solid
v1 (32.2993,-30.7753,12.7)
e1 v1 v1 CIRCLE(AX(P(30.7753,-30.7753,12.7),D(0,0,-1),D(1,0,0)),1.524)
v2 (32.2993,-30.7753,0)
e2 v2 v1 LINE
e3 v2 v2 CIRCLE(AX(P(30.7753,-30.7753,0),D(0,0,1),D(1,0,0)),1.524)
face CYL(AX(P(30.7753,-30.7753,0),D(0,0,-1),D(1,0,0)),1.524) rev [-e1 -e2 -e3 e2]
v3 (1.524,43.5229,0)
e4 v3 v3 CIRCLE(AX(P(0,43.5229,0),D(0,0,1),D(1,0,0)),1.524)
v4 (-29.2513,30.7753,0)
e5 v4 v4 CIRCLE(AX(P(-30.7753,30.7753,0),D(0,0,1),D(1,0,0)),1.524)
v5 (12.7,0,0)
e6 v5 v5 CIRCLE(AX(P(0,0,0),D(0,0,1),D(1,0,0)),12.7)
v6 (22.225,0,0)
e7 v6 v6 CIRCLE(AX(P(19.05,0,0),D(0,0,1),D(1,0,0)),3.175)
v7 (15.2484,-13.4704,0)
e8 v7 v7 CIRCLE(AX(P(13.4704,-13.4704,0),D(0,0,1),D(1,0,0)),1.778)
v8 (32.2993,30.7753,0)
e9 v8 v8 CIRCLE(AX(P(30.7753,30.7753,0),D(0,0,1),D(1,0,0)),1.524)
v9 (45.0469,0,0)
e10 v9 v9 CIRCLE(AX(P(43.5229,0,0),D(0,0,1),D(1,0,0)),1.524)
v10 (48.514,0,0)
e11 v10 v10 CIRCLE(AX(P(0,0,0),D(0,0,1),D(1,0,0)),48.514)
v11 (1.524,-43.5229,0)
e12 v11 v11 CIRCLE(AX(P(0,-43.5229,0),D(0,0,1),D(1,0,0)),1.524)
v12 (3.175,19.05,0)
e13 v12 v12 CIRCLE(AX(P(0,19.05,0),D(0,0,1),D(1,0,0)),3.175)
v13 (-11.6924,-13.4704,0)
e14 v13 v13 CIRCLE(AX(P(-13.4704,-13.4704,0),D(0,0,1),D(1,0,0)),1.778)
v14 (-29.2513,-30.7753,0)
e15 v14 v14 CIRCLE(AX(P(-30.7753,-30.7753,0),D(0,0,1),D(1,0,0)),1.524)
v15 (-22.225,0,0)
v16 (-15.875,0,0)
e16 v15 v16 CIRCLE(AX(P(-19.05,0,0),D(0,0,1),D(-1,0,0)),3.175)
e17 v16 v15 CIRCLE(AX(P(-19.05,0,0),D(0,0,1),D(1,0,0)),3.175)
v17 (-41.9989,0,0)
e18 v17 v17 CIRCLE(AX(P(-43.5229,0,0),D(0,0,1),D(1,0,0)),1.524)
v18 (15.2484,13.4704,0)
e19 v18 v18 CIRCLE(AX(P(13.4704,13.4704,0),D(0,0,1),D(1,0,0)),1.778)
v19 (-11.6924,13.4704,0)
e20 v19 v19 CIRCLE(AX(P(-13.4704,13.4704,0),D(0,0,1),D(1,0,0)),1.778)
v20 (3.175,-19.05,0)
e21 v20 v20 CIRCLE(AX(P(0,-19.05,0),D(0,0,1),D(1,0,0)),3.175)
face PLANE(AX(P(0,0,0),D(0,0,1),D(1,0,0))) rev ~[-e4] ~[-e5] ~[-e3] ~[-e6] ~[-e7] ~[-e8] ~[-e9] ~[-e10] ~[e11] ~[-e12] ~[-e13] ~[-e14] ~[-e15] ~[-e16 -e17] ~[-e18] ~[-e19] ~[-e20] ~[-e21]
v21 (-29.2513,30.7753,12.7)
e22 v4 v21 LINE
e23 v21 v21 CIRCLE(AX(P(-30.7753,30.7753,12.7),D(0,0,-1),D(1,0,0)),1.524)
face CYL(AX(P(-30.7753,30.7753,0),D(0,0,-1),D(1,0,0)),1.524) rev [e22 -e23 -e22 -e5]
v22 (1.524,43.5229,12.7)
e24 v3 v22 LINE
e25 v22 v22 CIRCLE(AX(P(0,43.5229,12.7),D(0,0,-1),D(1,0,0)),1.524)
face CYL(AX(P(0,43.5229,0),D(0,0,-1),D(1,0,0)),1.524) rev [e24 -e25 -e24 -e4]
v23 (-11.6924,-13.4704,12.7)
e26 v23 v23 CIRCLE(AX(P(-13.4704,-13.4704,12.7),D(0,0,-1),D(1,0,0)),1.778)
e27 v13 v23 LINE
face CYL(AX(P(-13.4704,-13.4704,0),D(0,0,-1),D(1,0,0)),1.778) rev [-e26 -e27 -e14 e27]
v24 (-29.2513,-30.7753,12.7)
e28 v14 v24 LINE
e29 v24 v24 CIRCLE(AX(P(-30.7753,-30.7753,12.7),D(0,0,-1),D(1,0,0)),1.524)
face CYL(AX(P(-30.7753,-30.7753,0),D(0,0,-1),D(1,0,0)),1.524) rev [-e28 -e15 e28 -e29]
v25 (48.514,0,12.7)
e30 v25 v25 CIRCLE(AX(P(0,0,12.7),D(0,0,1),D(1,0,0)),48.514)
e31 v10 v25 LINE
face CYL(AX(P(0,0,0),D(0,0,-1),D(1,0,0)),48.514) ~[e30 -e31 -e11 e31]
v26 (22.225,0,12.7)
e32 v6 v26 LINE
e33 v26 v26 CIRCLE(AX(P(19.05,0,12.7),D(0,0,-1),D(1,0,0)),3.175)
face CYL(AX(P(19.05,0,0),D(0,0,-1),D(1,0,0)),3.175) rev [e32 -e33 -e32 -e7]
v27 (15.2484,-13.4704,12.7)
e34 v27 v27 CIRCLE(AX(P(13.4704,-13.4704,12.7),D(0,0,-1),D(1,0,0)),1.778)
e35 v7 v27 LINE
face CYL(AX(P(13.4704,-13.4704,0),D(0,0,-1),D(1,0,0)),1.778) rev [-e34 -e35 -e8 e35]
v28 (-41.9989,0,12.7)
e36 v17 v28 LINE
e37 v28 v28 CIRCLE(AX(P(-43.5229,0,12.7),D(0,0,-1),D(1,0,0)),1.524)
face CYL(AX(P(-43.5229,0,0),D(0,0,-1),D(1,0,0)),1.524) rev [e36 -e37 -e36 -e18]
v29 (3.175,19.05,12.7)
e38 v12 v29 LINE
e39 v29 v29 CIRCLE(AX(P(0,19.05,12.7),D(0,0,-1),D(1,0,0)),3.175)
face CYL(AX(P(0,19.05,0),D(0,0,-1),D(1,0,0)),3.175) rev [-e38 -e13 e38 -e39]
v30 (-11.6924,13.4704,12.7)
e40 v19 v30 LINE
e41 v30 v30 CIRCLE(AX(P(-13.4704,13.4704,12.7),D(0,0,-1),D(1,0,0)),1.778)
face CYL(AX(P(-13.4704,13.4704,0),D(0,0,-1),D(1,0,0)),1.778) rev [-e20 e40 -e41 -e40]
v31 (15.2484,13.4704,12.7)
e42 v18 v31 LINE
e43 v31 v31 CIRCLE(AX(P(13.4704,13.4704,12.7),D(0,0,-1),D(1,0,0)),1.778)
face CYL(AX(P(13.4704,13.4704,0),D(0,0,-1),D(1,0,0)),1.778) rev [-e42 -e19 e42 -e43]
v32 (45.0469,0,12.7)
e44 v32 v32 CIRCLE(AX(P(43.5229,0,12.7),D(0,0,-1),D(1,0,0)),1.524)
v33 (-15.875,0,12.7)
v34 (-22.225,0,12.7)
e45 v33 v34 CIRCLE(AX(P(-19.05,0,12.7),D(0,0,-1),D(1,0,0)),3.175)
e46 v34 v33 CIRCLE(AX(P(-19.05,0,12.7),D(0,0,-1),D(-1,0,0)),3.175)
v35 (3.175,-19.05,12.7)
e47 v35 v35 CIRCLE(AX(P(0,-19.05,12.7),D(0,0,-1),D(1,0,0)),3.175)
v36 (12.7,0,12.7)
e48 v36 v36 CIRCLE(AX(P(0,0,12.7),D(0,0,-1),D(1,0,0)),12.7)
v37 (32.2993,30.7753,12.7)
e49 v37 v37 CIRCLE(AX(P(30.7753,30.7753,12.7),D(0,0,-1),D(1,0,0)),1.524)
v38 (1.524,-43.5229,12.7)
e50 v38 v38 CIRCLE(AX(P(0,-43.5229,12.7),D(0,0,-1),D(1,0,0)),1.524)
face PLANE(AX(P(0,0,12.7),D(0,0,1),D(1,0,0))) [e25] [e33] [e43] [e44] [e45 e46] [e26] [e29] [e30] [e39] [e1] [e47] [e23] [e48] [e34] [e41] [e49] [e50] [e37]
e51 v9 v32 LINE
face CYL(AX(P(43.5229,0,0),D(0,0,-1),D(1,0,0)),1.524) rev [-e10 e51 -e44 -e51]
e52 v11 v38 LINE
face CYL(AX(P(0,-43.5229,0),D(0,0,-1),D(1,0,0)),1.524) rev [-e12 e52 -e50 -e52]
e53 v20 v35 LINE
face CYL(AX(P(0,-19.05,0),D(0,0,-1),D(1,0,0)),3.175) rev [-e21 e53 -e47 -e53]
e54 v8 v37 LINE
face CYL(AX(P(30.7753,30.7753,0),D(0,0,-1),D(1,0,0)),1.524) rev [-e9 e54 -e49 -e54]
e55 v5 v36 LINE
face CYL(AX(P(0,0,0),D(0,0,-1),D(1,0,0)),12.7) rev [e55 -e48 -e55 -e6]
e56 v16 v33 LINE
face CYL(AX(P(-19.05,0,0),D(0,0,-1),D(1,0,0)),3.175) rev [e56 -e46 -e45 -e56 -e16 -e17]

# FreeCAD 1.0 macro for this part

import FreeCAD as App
import Part
import Sketcher

V = App.Vector
Q = App.Units.Quantity

doc = App.newDocument("Part")
body = doc.addObject("PartDesign::Body", "Body")

sketch1 = doc.addObject("Sketcher::SketchObject", "Sketch")
body.addObject(sketch1)
sketch1.AttachmentSupport = (doc.XY_Plane, [""])
sketch1.MapMode = "FlatFace"
sketch1.addGeometry(Part.Circle(V(0, 0, 0), V(0, 0, 1), 48.5), False)
sketch1.addGeometry(Part.Circle(V(-43.5, 0, 0), V(0, 0, 1), 1.5), False)
sketch1.addGeometry(Part.Circle(V(-30.8, -30.8, 0), V(0, 0, 1), 1.5), False)
sketch1.addGeometry(Part.Circle(V(0, -43.5, 0), V(0, 0, 1), 1.5), False)
sketch1.addGeometry(Part.Circle(V(30.8, -30.8, 0), V(0, 0, 1), 1.5), False)
sketch1.addGeometry(Part.Circle(V(43.5, 0, 0), V(0, 0, 1), 1.5), False)
sketch1.addGeometry(Part.Circle(V(30.8, 30.8, 0), V(0, 0, 1), 1.5), False)
sketch1.addGeometry(Part.Circle(V(0, 43.5, 0), V(0, 0, 1), 1.5), False)
sketch1.addGeometry(Part.Circle(V(-30.8, 30.8, 0), V(0, 0, 1), 1.5), False)
sketch1.addGeometry(Part.Circle(V(0, -19.1, 0), V(0, 0, 1), 3.2), False)
sketch1.addGeometry(Part.Circle(V(13.5, -13.5, 0), V(0, 0, 1), 1.8), False)
sketch1.addGeometry(Part.Circle(V(19.1, 0, 0), V(0, 0, 1), 3.2), False)
sketch1.addGeometry(Part.Circle(V(13.5, 13.5, 0), V(0, 0, 1), 1.8), False)
sketch1.addGeometry(Part.Circle(V(0, 19.1, 0), V(0, 0, 1), 3.2), False)
sketch1.addGeometry(Part.Circle(V(-13.5, 13.5, 0), V(0, 0, 1), 1.8), False)
sketch1.addGeometry(Part.Circle(V(-19.1, 0, 0), V(0, 0, 1), 3.2), False)
sketch1.addGeometry(Part.Circle(V(-13.5, -13.5, 0), V(0, 0, 1), 1.8), False)
sketch1.addGeometry(Part.Circle(V(0, 0, 0), V(0, 0, 1), 12.7), False)
sketch1.addConstraint(Sketcher.Constraint("Coincident", 0, 3, -1, 1))
sketch1.addConstraint(Sketcher.Constraint("Coincident", 17, 3, -1, 1))
sketch1.addConstraint(Sketcher.Constraint("Equal", 1, 2))
sketch1.addConstraint(Sketcher.Constraint("Equal", 2, 3))
sketch1.addConstraint(Sketcher.Constraint("Equal", 3, 4))
sketch1.addConstraint(Sketcher.Constraint("Equal", 4, 5))
sketch1.addConstraint(Sketcher.Constraint("Equal", 5, 6))
sketch1.addConstraint(Sketcher.Constraint("Equal", 6, 7))
sketch1.addConstraint(Sketcher.Constraint("Equal", 7, 8))
sketch1.addConstraint(Sketcher.Constraint("Equal", 9, 11))
sketch1.addConstraint(Sketcher.Constraint("Equal", 10, 12))
sketch1.addConstraint(Sketcher.Constraint("Equal", 11, 13))
sketch1.addConstraint(Sketcher.Constraint("Equal", 12, 14))
sketch1.addConstraint(Sketcher.Constraint("Equal", 13, 15))
sketch1.addConstraint(Sketcher.Constraint("Equal", 14, 16))
sketch1.addConstraint(Sketcher.Constraint("Symmetric", 1, 3, 5, 3, -1, 1))
sketch1.addConstraint(Sketcher.Constraint("Symmetric", 2, 3, 6, 3, -1, 1))
sketch1.addConstraint(Sketcher.Constraint("Symmetric", 3, 3, 7, 3, -1, 1))
sketch1.addConstraint(Sketcher.Constraint("Symmetric", 4, 3, 8, 3, -1, 1))
sketch1.addConstraint(Sketcher.Constraint("Symmetric", 9, 3, 13, 3, -1, 1))
sketch1.addConstraint(Sketcher.Constraint("Symmetric", 10, 3, 14, 3, -1, 1))
sketch1.addConstraint(Sketcher.Constraint("Symmetric", 11, 3, 15, 3, -1, 1))
sketch1.addConstraint(Sketcher.Constraint("Symmetric", 12, 3, 16, 3, -1, 1))
sketch1.addConstraint(Sketcher.Constraint("Symmetric", 2, 3, 4, 3, -2))
sketch1.addConstraint(Sketcher.Constraint("Symmetric", 12, 3, 14, 3, -2))
sketch1.addConstraint(Sketcher.Constraint("PointOnObject", 1, 3, -1))
sketch1.addConstraint(Sketcher.Constraint("PointOnObject", 3, 3, -2))
sketch1.addConstraint(Sketcher.Constraint("PointOnObject", 9, 3, -2))
sketch1.addConstraint(Sketcher.Constraint("PointOnObject", 11, 3, -1))
sketch1.addConstraint(Sketcher.Constraint("Diameter", 17, Q("1 in")))
sketch1.addConstraint(Sketcher.Constraint("Diameter", 0, Q("3.82 in")))
sketch1.addConstraint(Sketcher.Constraint("Diameter", 1, Q("0.12 in")))
sketch1.addConstraint(Sketcher.Constraint("Diameter", 9, Q("0.25 in")))
sketch1.addConstraint(Sketcher.Constraint("Diameter", 10, Q("0.14 in")))
sketch1.addConstraint(Sketcher.Constraint("DistanceX", 1, 3, 5, 3, Q("3.427 in")))
sketch1.addConstraint(Sketcher.Constraint("DistanceY", 9, 3, -1, 1, Q("0.75 in")))
sketch1.addConstraint(Sketcher.Constraint("DistanceX", -1, 1, 11, 3, Q("0.75 in")))
sketch1.addConstraint(Sketcher.Constraint("DistanceY", 3, 3, -1, 1, Q("1.7135 in")))
sketch1.addConstraint(Sketcher.Constraint("DistanceX", 10, 3, 4, 3, Q("0.6813 in")))
sketch1.addConstraint(Sketcher.Constraint("DistanceY", 4, 3, 10, 3, Q("0.6813 in")))
sketch1.addConstraint(Sketcher.Constraint("DistanceX", 2, 3, -1, 1, 30.7753))
sketch1.addConstraint(Sketcher.Constraint("DistanceY", 2, 3, -1, 1, 30.7753))
pad1 = doc.addObject("PartDesign::Pad", "Pad")
body.addObject(pad1)
pad1.Profile = sketch1
pad1.Length = Q("0.5 in")

doc.recompute()
